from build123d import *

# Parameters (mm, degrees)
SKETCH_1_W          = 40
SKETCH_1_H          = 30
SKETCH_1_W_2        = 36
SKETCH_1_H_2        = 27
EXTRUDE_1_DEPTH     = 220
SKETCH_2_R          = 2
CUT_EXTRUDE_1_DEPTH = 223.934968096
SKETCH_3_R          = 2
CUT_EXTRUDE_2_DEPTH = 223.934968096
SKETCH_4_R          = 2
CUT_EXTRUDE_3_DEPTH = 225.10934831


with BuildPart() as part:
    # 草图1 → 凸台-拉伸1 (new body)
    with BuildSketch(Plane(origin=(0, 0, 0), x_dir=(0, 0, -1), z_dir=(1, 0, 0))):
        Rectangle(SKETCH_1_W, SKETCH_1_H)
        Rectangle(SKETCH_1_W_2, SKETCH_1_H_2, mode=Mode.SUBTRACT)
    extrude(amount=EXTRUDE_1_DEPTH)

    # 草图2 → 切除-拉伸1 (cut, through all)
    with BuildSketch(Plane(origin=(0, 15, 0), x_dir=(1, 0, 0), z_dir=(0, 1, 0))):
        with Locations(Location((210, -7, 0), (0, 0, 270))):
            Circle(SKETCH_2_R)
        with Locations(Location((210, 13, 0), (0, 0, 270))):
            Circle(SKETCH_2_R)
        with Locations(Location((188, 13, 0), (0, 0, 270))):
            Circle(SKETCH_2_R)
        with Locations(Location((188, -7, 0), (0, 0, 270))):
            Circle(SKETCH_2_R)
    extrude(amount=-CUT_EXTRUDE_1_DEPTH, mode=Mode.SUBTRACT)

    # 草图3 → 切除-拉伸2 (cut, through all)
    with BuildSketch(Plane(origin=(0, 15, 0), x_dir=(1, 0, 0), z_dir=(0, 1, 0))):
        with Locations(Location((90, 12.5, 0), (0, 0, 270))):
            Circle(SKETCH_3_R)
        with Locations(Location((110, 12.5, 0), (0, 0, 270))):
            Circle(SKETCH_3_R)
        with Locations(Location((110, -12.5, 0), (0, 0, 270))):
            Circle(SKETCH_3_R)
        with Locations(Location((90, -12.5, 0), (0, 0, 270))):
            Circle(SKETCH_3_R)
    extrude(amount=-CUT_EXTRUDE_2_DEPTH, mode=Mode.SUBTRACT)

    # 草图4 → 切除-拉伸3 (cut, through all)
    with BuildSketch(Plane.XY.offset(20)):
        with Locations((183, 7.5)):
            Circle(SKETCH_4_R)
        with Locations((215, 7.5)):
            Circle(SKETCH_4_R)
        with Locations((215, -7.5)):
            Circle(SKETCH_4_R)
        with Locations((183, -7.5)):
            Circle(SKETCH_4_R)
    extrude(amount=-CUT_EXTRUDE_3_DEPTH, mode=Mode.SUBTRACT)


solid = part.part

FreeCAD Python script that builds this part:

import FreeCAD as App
import Part
import Sketcher

V = App.Vector
Q = App.Units.Quantity

doc = App.newDocument("Part")
body = doc.addObject("PartDesign::Body", "Body")

# Sketch on YZ plane
sketch1 = body.newObject("Sketcher::SketchObject", "Sketch")
sketch1.AttachmentSupport = (doc.getObject("YZ_Plane"), [""])
sketch1.MapMode = "FlatFace"
sketch1.addGeometry([
    Part.LineSegment(V(15, 20, 0), V(-15, 20, 0)),  # 0
    Part.LineSegment(V(-15, 20, 0), V(-15, -20, 0)),  # 1
    Part.LineSegment(V(-15, -20, 0), V(15, -20, 0)),  # 2
    Part.LineSegment(V(15, -20, 0), V(15, 20, 0)),  # 3
    Part.LineSegment(V(-14, -18, 0), V(-14, 18, 0)),  # 4
    Part.LineSegment(V(-14, 18, 0), V(14, 18, 0)),  # 5
    Part.LineSegment(V(14, 18, 0), V(14, -18, 0)),  # 6
    Part.LineSegment(V(14, -18, 0), V(-14, -18, 0)),  # 7
], False)
sketch1.addConstraint([
    Sketcher.Constraint("Coincident", 0, 2, 1, 1),
    Sketcher.Constraint("Coincident", 1, 2, 2, 1),
    Sketcher.Constraint("Coincident", 2, 2, 3, 1),
    Sketcher.Constraint("Coincident", 3, 2, 0, 1),
    Sketcher.Constraint("Coincident", 4, 2, 5, 1),
    Sketcher.Constraint("Coincident", 5, 2, 6, 1),
    Sketcher.Constraint("Coincident", 6, 2, 7, 1),
    Sketcher.Constraint("Coincident", 7, 2, 4, 1),
    Sketcher.Constraint("Horizontal", 0),
    Sketcher.Constraint("Vertical", 1),
    Sketcher.Constraint("Horizontal", 2),
    Sketcher.Constraint("Vertical", 3),
    Sketcher.Constraint("Vertical", 4),
    Sketcher.Constraint("Horizontal", 5),
    Sketcher.Constraint("Vertical", 6),
    Sketcher.Constraint("Horizontal", 7),
    Sketcher.Constraint("Symmetric", 0, 2, 2, 2, -1, 1),
    Sketcher.Constraint("Symmetric", 4, 2, 6, 2, -1, 1),
    Sketcher.Constraint("DistanceX", 0, 2, 0, 1, Q("30 mm")),
    Sketcher.Constraint("DistanceX", 5, 1, 5, 2, Q("27 mm")),
    Sketcher.Constraint("DistanceY", 1, 2, 1, 1, Q("40 mm")),
    Sketcher.Constraint("DistanceY", 4, 1, 4, 2, Q("36 mm")),
])
pad1 = body.newObject("PartDesign::Pad", "Pad")
pad1.Profile = sketch1
pad1.Length = 220

# Sketch on XZ plane
sketch2 = body.newObject("Sketcher::SketchObject", "Sketch001")
sketch2.AttachmentSupport = (doc.getObject("XZ_Plane"), [""])
sketch2.MapMode = "FlatFace"
sketch2.AttachmentOffset = App.Placement(V(0, 0, -15), App.Rotation())
sketch2.addGeometry([
    Part.Circle(V(210, 7, 0), V(0, 0, 1), 2),
    Part.Circle(V(210, -13, 0), V(0, 0, 1), 2),
    Part.Circle(V(188, -13, 0), V(0, 0, 1), 2),
    Part.Circle(V(188, 7, 0), V(0, 0, 1), 2),
], False)
sketch2.addConstraint([
    Sketcher.Constraint("Equal", 0, 1),
    Sketcher.Constraint("Equal", 1, 2),
    Sketcher.Constraint("Equal", 2, 3),
    Sketcher.Constraint("Horizontal", 1, 3, 2, 3),
    Sketcher.Constraint("Horizontal", 0, 3, 3, 3),
    Sketcher.Constraint("Vertical", 0, 3, 1, 3),
    Sketcher.Constraint("Vertical", 2, 3, 3, 3),
    Sketcher.Constraint("Diameter", 0, Q("4 mm")),
    Sketcher.Constraint("DistanceX", -1, 1, 0, 3, Q("210 mm")),
    Sketcher.Constraint("DistanceY", -1, 1, 0, 3, Q("7 mm")),
    Sketcher.Constraint("DistanceY", 1, 3, -1, 1, Q("13 mm")),
    Sketcher.Constraint("DistanceX", -1, 1, 2, 3, Q("188 mm")),
])
pocket1 = body.newObject("PartDesign::Pocket", "Pocket")
pocket1.Profile = sketch2
pocket1.Type = "ThroughAll"
pocket1.Reversed = True

# Sketch on XZ plane
sketch3 = body.newObject("Sketcher::SketchObject", "Sketch002")
sketch3.AttachmentSupport = (doc.getObject("XZ_Plane"), [""])
sketch3.MapMode = "FlatFace"
sketch3.AttachmentOffset = App.Placement(V(0, 0, -15), App.Rotation())
sketch3.addGeometry([
    Part.Circle(V(90, -12.5, 0), V(0, 0, 1), 2),
    Part.Circle(V(110, -12.5, 0), V(0, 0, 1), 2),
    Part.Circle(V(110, 12.5, 0), V(0, 0, 1), 2),
    Part.Circle(V(90, 12.5, 0), V(0, 0, 1), 2),
], False)
sketch3.addConstraint([
    Sketcher.Constraint("Equal", 0, 1),
    Sketcher.Constraint("Equal", 1, 2),
    Sketcher.Constraint("Equal", 2, 3),
    Sketcher.Constraint("Symmetric", 1, 3, 2, 3, -1),
    Sketcher.Constraint("Symmetric", 0, 3, 3, 3, -1),
    Sketcher.Constraint("Horizontal", 0, 3, 1, 3),
    Sketcher.Constraint("Diameter", 0, Q("4 mm")),
    Sketcher.Constraint("DistanceX", -1, 1, 0, 3, Q("90 mm")),
    Sketcher.Constraint("DistanceX", -1, 1, 1, 3, Q("110 mm")),
    Sketcher.Constraint("DistanceY", 1, 3, 2, 3, Q("25 mm")),
])
pocket2 = body.newObject("PartDesign::Pocket", "Pocket001")
pocket2.Profile = sketch3
pocket2.Type = "ThroughAll"
pocket2.Reversed = True

# Sketch on XY plane
sketch4 = body.newObject("Sketcher::SketchObject", "Sketch003")
sketch4.AttachmentSupport = (doc.getObject("XY_Plane"), [""])
sketch4.MapMode = "FlatFace"
sketch4.AttachmentOffset = App.Placement(V(0, 0, 20), App.Rotation())
sketch4.addGeometry([
    Part.Circle(V(183, 7.5, 0), V(0, 0, 1), 2),
    Part.Circle(V(215, 7.5, 0), V(0, 0, 1), 2),
    Part.Circle(V(215, -7.5, 0), V(0, 0, 1), 2),
    Part.Circle(V(183, -7.5, 0), V(0, 0, 1), 2),
], False)
sketch4.addConstraint([
    Sketcher.Constraint("Equal", 0, 1),
    Sketcher.Constraint("Equal", 1, 2),
    Sketcher.Constraint("Equal", 2, 3),
    Sketcher.Constraint("Symmetric", 1, 3, 2, 3, -1),
    Sketcher.Constraint("Symmetric", 0, 3, 3, 3, -1),
    Sketcher.Constraint("Horizontal", 0, 3, 1, 3),
    Sketcher.Constraint("Diameter", 0, Q("4 mm")),
    Sketcher.Constraint("DistanceX", -1, 1, 0, 3, Q("183 mm")),
    Sketcher.Constraint("DistanceX", -1, 1, 1, 3, Q("215 mm")),
    Sketcher.Constraint("DistanceY", 2, 3, 1, 3, Q("15 mm")),
])
pocket3 = body.newObject("PartDesign::Pocket", "Pocket002")
pocket3.Profile = sketch4
pocket3.Type = "ThroughAll"

doc.recompute()
